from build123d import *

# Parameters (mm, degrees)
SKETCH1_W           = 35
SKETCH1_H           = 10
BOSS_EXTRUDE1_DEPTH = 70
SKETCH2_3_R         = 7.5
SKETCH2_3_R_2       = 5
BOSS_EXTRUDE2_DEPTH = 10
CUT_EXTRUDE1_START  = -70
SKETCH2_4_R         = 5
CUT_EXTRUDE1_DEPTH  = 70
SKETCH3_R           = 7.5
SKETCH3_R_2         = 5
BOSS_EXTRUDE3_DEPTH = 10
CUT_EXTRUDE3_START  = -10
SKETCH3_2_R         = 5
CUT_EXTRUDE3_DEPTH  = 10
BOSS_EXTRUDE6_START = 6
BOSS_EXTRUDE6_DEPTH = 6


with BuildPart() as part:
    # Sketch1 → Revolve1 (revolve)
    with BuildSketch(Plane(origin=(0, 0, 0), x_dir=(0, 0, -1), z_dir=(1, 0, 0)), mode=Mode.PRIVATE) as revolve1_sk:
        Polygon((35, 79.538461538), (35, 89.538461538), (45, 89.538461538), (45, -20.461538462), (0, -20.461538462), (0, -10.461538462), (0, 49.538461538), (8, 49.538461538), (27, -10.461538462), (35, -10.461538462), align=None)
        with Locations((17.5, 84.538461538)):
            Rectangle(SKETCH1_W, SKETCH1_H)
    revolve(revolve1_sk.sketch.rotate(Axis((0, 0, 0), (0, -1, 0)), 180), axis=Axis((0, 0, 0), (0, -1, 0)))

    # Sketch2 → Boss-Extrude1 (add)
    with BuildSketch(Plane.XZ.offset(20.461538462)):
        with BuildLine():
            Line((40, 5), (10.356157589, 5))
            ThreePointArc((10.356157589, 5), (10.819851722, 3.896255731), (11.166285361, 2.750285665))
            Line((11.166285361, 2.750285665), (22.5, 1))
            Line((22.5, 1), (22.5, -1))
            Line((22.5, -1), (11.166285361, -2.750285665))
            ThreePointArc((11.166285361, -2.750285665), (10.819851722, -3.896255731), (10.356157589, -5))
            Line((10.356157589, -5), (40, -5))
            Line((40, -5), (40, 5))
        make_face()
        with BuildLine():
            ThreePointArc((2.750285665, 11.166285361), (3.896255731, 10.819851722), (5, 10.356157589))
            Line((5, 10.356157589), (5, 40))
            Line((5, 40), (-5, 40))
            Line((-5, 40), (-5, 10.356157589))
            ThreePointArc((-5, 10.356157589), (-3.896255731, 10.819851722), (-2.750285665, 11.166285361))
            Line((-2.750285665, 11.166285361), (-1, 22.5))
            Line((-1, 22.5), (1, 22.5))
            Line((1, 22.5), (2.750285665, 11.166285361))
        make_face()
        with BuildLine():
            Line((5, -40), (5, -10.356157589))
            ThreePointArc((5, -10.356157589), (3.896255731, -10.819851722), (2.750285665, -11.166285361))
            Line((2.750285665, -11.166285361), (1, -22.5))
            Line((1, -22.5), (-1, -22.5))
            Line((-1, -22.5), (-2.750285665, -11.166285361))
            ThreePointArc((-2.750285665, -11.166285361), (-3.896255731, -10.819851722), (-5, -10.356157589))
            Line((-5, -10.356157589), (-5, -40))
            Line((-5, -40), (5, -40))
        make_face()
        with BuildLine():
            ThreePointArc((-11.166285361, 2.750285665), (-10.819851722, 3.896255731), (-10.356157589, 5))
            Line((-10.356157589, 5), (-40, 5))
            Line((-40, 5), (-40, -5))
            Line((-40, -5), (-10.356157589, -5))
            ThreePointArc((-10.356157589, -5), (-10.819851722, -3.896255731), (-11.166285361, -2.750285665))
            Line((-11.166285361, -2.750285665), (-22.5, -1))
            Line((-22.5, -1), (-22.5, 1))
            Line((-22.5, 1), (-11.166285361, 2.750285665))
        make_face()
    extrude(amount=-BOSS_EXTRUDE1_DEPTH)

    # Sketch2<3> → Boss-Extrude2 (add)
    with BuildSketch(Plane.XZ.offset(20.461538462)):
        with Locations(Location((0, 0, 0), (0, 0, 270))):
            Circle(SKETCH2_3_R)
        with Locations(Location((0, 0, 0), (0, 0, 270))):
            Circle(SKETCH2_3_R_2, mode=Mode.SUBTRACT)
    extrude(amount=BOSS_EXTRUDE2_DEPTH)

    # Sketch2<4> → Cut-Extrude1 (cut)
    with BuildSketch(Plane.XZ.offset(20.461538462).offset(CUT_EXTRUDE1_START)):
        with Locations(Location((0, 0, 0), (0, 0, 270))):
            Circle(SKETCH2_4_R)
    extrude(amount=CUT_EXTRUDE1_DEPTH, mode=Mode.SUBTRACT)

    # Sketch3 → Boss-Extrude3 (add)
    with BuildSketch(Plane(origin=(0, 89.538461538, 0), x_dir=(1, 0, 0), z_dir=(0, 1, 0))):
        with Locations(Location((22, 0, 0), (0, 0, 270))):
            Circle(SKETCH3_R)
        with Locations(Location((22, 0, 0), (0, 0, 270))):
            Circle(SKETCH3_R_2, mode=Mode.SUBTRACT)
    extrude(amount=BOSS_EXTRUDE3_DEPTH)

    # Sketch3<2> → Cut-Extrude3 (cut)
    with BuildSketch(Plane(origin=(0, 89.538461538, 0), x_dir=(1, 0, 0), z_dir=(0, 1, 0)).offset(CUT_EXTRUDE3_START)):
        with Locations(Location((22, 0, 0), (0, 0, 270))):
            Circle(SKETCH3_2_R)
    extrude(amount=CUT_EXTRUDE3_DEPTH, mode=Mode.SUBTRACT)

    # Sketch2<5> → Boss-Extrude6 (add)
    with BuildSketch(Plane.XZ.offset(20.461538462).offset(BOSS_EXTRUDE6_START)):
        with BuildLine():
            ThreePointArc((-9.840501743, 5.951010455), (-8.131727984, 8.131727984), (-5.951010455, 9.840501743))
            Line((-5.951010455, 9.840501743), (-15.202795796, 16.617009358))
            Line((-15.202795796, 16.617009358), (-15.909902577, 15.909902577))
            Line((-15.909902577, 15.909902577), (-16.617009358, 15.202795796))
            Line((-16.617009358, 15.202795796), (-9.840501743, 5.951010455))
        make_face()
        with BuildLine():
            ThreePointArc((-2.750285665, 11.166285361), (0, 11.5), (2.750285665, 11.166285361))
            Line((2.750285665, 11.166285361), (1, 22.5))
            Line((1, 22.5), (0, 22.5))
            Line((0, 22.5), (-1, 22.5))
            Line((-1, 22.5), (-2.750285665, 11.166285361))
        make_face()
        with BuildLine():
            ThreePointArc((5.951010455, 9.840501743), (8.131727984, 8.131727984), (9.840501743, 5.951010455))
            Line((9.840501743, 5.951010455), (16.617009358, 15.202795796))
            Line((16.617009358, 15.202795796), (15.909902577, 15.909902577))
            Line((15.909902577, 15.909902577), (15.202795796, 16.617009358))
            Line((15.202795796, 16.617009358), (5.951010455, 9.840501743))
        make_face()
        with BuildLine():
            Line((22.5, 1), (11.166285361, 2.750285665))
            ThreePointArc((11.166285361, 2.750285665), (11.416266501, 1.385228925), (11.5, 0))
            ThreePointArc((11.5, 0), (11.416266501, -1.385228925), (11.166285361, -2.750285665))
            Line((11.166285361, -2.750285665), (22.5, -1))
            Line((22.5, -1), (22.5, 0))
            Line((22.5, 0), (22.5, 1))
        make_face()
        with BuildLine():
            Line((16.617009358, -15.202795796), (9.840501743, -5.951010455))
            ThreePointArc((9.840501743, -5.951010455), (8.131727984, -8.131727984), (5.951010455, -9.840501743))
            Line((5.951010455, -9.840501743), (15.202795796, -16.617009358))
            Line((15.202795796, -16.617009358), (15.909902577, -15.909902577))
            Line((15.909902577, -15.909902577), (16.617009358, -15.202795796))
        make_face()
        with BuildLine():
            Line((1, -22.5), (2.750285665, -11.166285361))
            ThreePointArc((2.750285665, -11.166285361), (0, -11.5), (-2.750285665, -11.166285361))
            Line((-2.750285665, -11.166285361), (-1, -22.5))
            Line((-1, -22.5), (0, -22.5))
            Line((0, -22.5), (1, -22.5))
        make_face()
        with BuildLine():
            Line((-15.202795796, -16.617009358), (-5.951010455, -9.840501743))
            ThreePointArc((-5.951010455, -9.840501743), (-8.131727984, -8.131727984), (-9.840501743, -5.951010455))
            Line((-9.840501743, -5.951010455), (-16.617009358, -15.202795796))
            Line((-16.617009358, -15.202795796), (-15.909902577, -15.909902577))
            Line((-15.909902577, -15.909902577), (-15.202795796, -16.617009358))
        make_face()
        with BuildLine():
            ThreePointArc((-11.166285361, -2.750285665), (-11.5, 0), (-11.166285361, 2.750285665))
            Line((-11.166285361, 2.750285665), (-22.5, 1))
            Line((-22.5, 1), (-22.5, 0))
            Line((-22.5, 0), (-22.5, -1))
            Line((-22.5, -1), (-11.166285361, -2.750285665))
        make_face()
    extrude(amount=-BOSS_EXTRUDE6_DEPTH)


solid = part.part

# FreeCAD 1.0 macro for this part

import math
import FreeCAD as App
import Part
import Sketcher

V = App.Vector
Q = App.Units.Quantity

doc = App.newDocument("Part")
params = doc.addObject("Spreadsheet::Sheet", "Params")
for row, (alias, value) in enumerate([
    ("sketch1_width", "90 mm"),
    ("sketch1_width2", "70 mm"),
    ("sketch1_width3", "110 mm"),
    ("sketch1_width4", "10 mm"),
    ("sketch1_height", "8 mm"),
    ("revolution_angle", "360 deg"),
    ("sketch2_radius", "11.5 mm"),
    ("sketch2_width", "10 mm"),
    ("sketch2_width2", "2 mm"),
    ("pad1_length", "70 mm"),
    ("sketch3_diameter", "15 mm"),
    ("sketch3_diameter2", "10 mm"),
    ("pad2_length", "10 mm"),
    ("sketch4_diameter", "10 mm"),
    ("pocket1_length", "70 mm"),
    ("sketch5_diameter", "15 mm"),
    ("sketch5_diameter2", "10 mm"),
    ("pad3_length", "10 mm"),
    ("sketch6_diameter", "10 mm"),
    ("pocket2_length", "10 mm"),
    ("sketch7_radius", "11.5 mm"),
    ("sketch7_width", "2 mm"),
    ("sketch7_length", "2 mm"),
    ("pad4_length", "6 mm"),
], start=1):
    params.set(f"A{row}", alias)
    params.set(f"B{row}", "=" + value)
    params.setAlias(f"B{row}", alias)

body = doc.addObject("PartDesign::Body", "Body")

# Sketch on YZ plane
sketch1 = body.newObject("Sketcher::SketchObject", "Sketch")
sketch1.AttachmentSupport = (doc.getObject("YZ_Plane"), [""])
sketch1.MapMode = "FlatFace"
sketch1.addGeometry(Part.LineSegment(V(80, -35, 0), V(-10, -35, 0)), False)
sketch1.addGeometry(Part.LineSegment(V(-10, -35, 0), V(-10, -27, 0)), False)
sketch1.addGeometry(Part.LineSegment(V(-10, -27, 0), V(50, -8, 0)), False)
sketch1.addGeometry(Part.LineSegment(V(50, -8, 0), V(50, 0, 0)), False)
sketch1.addGeometry(Part.LineSegment(V(50, 0, 0), V(-20, 0, 0)), False)
sketch1.addGeometry(Part.LineSegment(V(-20, 0, 0), V(-20, -45, 0)), False)
sketch1.addGeometry(Part.LineSegment(V(-20, -45, 0), V(90, -45, 0)), False)
sketch1.addGeometry(Part.LineSegment(V(90, -45, 0), V(90, 0, 0)), False)
sketch1.addGeometry(Part.LineSegment(V(90, 0, 0), V(80, 0, 0)), False)
sketch1.addGeometry(Part.LineSegment(V(80, 0, 0), V(80, -35, 0)), False)
sketch1.addConstraint(Sketcher.Constraint("Coincident", 0, 2, 1, 1))
sketch1.addConstraint(Sketcher.Constraint("Coincident", 1, 2, 2, 1))
sketch1.addConstraint(Sketcher.Constraint("Coincident", 2, 2, 3, 1))
sketch1.addConstraint(Sketcher.Constraint("Coincident", 3, 2, 4, 1))
sketch1.addConstraint(Sketcher.Constraint("Coincident", 4, 2, 5, 1))
sketch1.addConstraint(Sketcher.Constraint("Coincident", 5, 2, 6, 1))
sketch1.addConstraint(Sketcher.Constraint("Coincident", 6, 2, 7, 1))
sketch1.addConstraint(Sketcher.Constraint("Coincident", 7, 2, 8, 1))
sketch1.addConstraint(Sketcher.Constraint("Coincident", 8, 2, 9, 1))
sketch1.addConstraint(Sketcher.Constraint("Coincident", 9, 2, 0, 1))
sketch1.addConstraint(Sketcher.Constraint("Horizontal", 0))
sketch1.addConstraint(Sketcher.Constraint("Vertical", 1))
sketch1.addConstraint(Sketcher.Constraint("Vertical", 3))
sketch1.addConstraint(Sketcher.Constraint("Horizontal", 4))
sketch1.addConstraint(Sketcher.Constraint("Vertical", 5))
sketch1.addConstraint(Sketcher.Constraint("Horizontal", 6))
sketch1.addConstraint(Sketcher.Constraint("Vertical", 7))
sketch1.addConstraint(Sketcher.Constraint("Horizontal", 8))
sketch1.addConstraint(Sketcher.Constraint("Vertical", 9))
sketch1.addConstraint(Sketcher.Constraint("PointOnObject", 3, 2, -1))
sketch1.addConstraint(Sketcher.Constraint("PointOnObject", 7, 2, -1))
sketch1.addConstraint(Sketcher.Constraint("Equal", 1, 3))
sketch1.addConstraint(Sketcher.Constraint("DistanceX", 0, 2, 0, 1, Q("90 mm")))
sketch1.addConstraint(Sketcher.Constraint("DistanceX", 4, 2, 4, 1, Q("70 mm")))
sketch1.addConstraint(Sketcher.Constraint("DistanceX", 6, 1, 6, 2, Q("110 mm")))
sketch1.addConstraint(Sketcher.Constraint("DistanceX", 8, 2, 8, 1, Q("10 mm")))
sketch1.addConstraint(Sketcher.Constraint("DistanceY", 1, 1, 1, 2, Q("8 mm")))
sketch1.addConstraint(Sketcher.Constraint("DistanceY", 5, 2, 5, 1, Q("45 mm")))
sketch1.addConstraint(Sketcher.Constraint("DistanceY", 9, 2, 9, 1, Q("35 mm")))
sketch1.addConstraint(Sketcher.Constraint("DistanceX", 0, 2, -1, 1, Q("10.461538 mm")))
sketch1.setExpression("Constraints[22]", "Params.sketch1_width")
sketch1.setExpression("Constraints[23]", "Params.sketch1_width2")
sketch1.setExpression("Constraints[24]", "Params.sketch1_width3")
sketch1.setExpression("Constraints[25]", "Params.sketch1_width4")
sketch1.setExpression("Constraints[26]", "Params.sketch1_height")
revolution = body.newObject("PartDesign::Revolution", "Revolution")
revolution.Profile = sketch1
revolution.ReferenceAxis = (sketch1, ["H_Axis"])
revolution.setExpression("Angle", "Params.revolution_angle")

# Sketch on XZ plane
sketch2 = body.newObject("Sketcher::SketchObject", "Sketch001")
sketch2.AttachmentSupport = (doc.getObject("XZ_Plane"), [""])
sketch2.MapMode = "FlatFace"
sketch2.AttachmentOffset = App.Placement(V(0, 0, 20.461538), App.Rotation())
sketch2.addGeometry(Part.LineSegment(V(40, 5, 0), V(10.4, 5, 0)), False)
sketch2.addGeometry(Part.ArcOfCircle(Part.Circle(V(0, 0, 0), V(0, 0, 1), 11.5), math.radians(13.84), math.radians(25.77)), False)
sketch2.addGeometry(Part.LineSegment(V(11.2, 2.8, 0), V(22.5, 1, 0)), False)
sketch2.addGeometry(Part.LineSegment(V(22.5, 1, 0), V(22.5, -1, 0)), False)
sketch2.addGeometry(Part.LineSegment(V(22.5, -1, 0), V(11.2, -2.8, 0)), False)
sketch2.addGeometry(Part.ArcOfCircle(Part.Circle(V(0, 0, 0), V(0, 0, 1), 11.5), math.radians(-25.77), math.radians(-13.84)), False)
sketch2.addGeometry(Part.LineSegment(V(10.4, -5, 0), V(40, -5, 0)), False)
sketch2.addGeometry(Part.LineSegment(V(40, -5, 0), V(40, 5, 0)), False)
sketch2.addGeometry(Part.ArcOfCircle(Part.Circle(V(0, 0, 0), V(0, 0, 1), 11.5), math.radians(64.23), math.radians(76.16)), False)
sketch2.addGeometry(Part.LineSegment(V(5, 10.4, 0), V(5, 40, 0)), False)
sketch2.addGeometry(Part.LineSegment(V(5, 40, 0), V(-5, 40, 0)), False)
sketch2.addGeometry(Part.LineSegment(V(-5, 40, 0), V(-5, 10.4, 0)), False)
sketch2.addGeometry(Part.ArcOfCircle(Part.Circle(V(0, 0, 0), V(0, 0, 1), 11.5), math.radians(103.84), math.radians(115.77)), False)
sketch2.addGeometry(Part.LineSegment(V(-2.8, 11.2, 0), V(-1, 22.5, 0)), False)
sketch2.addGeometry(Part.LineSegment(V(-1, 22.5, 0), V(1, 22.5, 0)), False)
sketch2.addGeometry(Part.LineSegment(V(1, 22.5, 0), V(2.8, 11.2, 0)), False)
sketch2.addGeometry(Part.LineSegment(V(5, -40, 0), V(5, -10.4, 0)), False)
sketch2.addGeometry(Part.ArcOfCircle(Part.Circle(V(0, 0, 0), V(0, 0, 1), 11.5), math.radians(-76.16), math.radians(-64.23)), False)
sketch2.addGeometry(Part.LineSegment(V(2.8, -11.2, 0), V(1, -22.5, 0)), False)
sketch2.addGeometry(Part.LineSegment(V(1, -22.5, 0), V(-1, -22.5, 0)), False)
sketch2.addGeometry(Part.LineSegment(V(-1, -22.5, 0), V(-2.8, -11.2, 0)), False)
sketch2.addGeometry(Part.ArcOfCircle(Part.Circle(V(0, 0, 0), V(0, 0, 1), 11.5), math.radians(-115.77), math.radians(-103.84)), False)
sketch2.addGeometry(Part.LineSegment(V(-5, -10.4, 0), V(-5, -40, 0)), False)
sketch2.addGeometry(Part.LineSegment(V(-5, -40, 0), V(5, -40, 0)), False)
sketch2.addGeometry(Part.ArcOfCircle(Part.Circle(V(0, 0, 0), V(0, 0, 1), 11.5), math.radians(154.23), math.radians(166.16)), False)
sketch2.addGeometry(Part.LineSegment(V(-10.4, 5, 0), V(-40, 5, 0)), False)
sketch2.addGeometry(Part.LineSegment(V(-40, 5, 0), V(-40, -5, 0)), False)
sketch2.addGeometry(Part.LineSegment(V(-40, -5, 0), V(-10.4, -5, 0)), False)
sketch2.addGeometry(Part.ArcOfCircle(Part.Circle(V(0, 0, 0), V(0, 0, 1), 11.5), math.radians(-166.16), math.radians(-154.23)), False)
sketch2.addGeometry(Part.LineSegment(V(-11.2, -2.8, 0), V(-22.5, -1, 0)), False)
sketch2.addGeometry(Part.LineSegment(V(-22.5, -1, 0), V(-22.5, 1, 0)), False)
sketch2.addGeometry(Part.LineSegment(V(-22.5, 1, 0), V(-11.2, 2.8, 0)), False)
sketch2.addConstraint(Sketcher.Constraint("Coincident", 0, 2, 1, 2))
sketch2.addConstraint(Sketcher.Constraint("Coincident", 1, 1, 2, 1))
sketch2.addConstraint(Sketcher.Constraint("Coincident", 2, 2, 3, 1))
sketch2.addConstraint(Sketcher.Constraint("Coincident", 3, 2, 4, 1))
sketch2.addConstraint(Sketcher.Constraint("Coincident", 4, 2, 5, 2))
sketch2.addConstraint(Sketcher.Constraint("Coincident", 5, 1, 6, 1))
sketch2.addConstraint(Sketcher.Constraint("Coincident", 6, 2, 7, 1))
sketch2.addConstraint(Sketcher.Constraint("Coincident", 7, 2, 0, 1))
sketch2.addConstraint(Sketcher.Constraint("Coincident", 8, 1, 9, 1))
sketch2.addConstraint(Sketcher.Constraint("Coincident", 9, 2, 10, 1))
sketch2.addConstraint(Sketcher.Constraint("Coincident", 10, 2, 11, 1))
sketch2.addConstraint(Sketcher.Constraint("Coincident", 11, 2, 12, 2))
sketch2.addConstraint(Sketcher.Constraint("Coincident", 12, 1, 13, 1))
sketch2.addConstraint(Sketcher.Constraint("Coincident", 13, 2, 14, 1))
sketch2.addConstraint(Sketcher.Constraint("Coincident", 14, 2, 15, 1))
sketch2.addConstraint(Sketcher.Constraint("Coincident", 15, 2, 8, 2))
sketch2.addConstraint(Sketcher.Constraint("Coincident", 16, 2, 17, 2))
sketch2.addConstraint(Sketcher.Constraint("Coincident", 17, 1, 18, 1))
sketch2.addConstraint(Sketcher.Constraint("Coincident", 18, 2, 19, 1))
sketch2.addConstraint(Sketcher.Constraint("Coincident", 19, 2, 20, 1))
sketch2.addConstraint(Sketcher.Constraint("Coincident", 20, 2, 21, 2))
sketch2.addConstraint(Sketcher.Constraint("Coincident", 21, 1, 22, 1))
sketch2.addConstraint(Sketcher.Constraint("Coincident", 22, 2, 23, 1))
sketch2.addConstraint(Sketcher.Constraint("Coincident", 23, 2, 16, 1))
sketch2.addConstraint(Sketcher.Constraint("Coincident", 24, 1, 25, 1))
sketch2.addConstraint(Sketcher.Constraint("Coincident", 25, 2, 26, 1))
sketch2.addConstraint(Sketcher.Constraint("Coincident", 26, 2, 27, 1))
sketch2.addConstraint(Sketcher.Constraint("Coincident", 27, 2, 28, 2))
sketch2.addConstraint(Sketcher.Constraint("Coincident", 28, 1, 29, 1))
sketch2.addConstraint(Sketcher.Constraint("Coincident", 29, 2, 30, 1))
sketch2.addConstraint(Sketcher.Constraint("Coincident", 30, 2, 31, 1))
sketch2.addConstraint(Sketcher.Constraint("Coincident", 31, 2, 24, 2))
sketch2.addConstraint(Sketcher.Constraint("Horizontal", 0))
sketch2.addConstraint(Sketcher.Constraint("Vertical", 3))
sketch2.addConstraint(Sketcher.Constraint("Horizontal", 6))
sketch2.addConstraint(Sketcher.Constraint("Vertical", 7))
sketch2.addConstraint(Sketcher.Constraint("Vertical", 9))
sketch2.addConstraint(Sketcher.Constraint("Horizontal", 10))
sketch2.addConstraint(Sketcher.Constraint("Vertical", 11))
sketch2.addConstraint(Sketcher.Constraint("Horizontal", 14))
sketch2.addConstraint(Sketcher.Constraint("Vertical", 16))
sketch2.addConstraint(Sketcher.Constraint("Horizontal", 19))
sketch2.addConstraint(Sketcher.Constraint("Vertical", 22))
sketch2.addConstraint(Sketcher.Constraint("Horizontal", 23))
sketch2.addConstraint(Sketcher.Constraint("Horizontal", 25))
sketch2.addConstraint(Sketcher.Constraint("Vertical", 26))
sketch2.addConstraint(Sketcher.Constraint("Horizontal", 27))
sketch2.addConstraint(Sketcher.Constraint("Vertical", 30))
sketch2.addConstraint(Sketcher.Constraint("Coincident", 1, 3, -1, 1))
sketch2.addConstraint(Sketcher.Constraint("Coincident", 5, 3, -1, 1))
sketch2.addConstraint(Sketcher.Constraint("Coincident", 8, 3, -1, 1))
sketch2.addConstraint(Sketcher.Constraint("Coincident", 12, 3, -1, 1))
sketch2.addConstraint(Sketcher.Constraint("Coincident", 17, 3, -1, 1))
sketch2.addConstraint(Sketcher.Constraint("Coincident", 21, 3, -1, 1))
sketch2.addConstraint(Sketcher.Constraint("Coincident", 24, 3, -1, 1))
sketch2.addConstraint(Sketcher.Constraint("Coincident", 28, 3, -1, 1))
sketch2.addConstraint(Sketcher.Constraint("Equal", 1, 5))
sketch2.addConstraint(Sketcher.Constraint("Equal", 5, 8))
sketch2.addConstraint(Sketcher.Constraint("Equal", 8, 12))
sketch2.addConstraint(Sketcher.Constraint("Equal", 12, 17))
sketch2.addConstraint(Sketcher.Constraint("Equal", 17, 21))
sketch2.addConstraint(Sketcher.Constraint("Equal", 21, 24))
sketch2.addConstraint(Sketcher.Constraint("Equal", 24, 28))
sketch2.addConstraint(Sketcher.Constraint("Symmetric", 13, 2, 18, 2, -1, 1))
sketch2.addConstraint(Sketcher.Constraint("Symmetric", 9, 2, 22, 2, -1, 1))
sketch2.addConstraint(Sketcher.Constraint("Symmetric", 6, 2, 25, 2, -1, 1))
sketch2.addConstraint(Sketcher.Constraint("Symmetric", 2, 2, 29, 2, -1, 1))
sketch2.addConstraint(Sketcher.Constraint("Perpendicular", 2, 13))
sketch2.addConstraint(Sketcher.Constraint("Perpendicular", 4, 15))
sketch2.addConstraint(Sketcher.Constraint("Parallel", 13, 18))
sketch2.addConstraint(Sketcher.Constraint("Parallel", 15, 20))
sketch2.addConstraint(Sketcher.Constraint("Perpendicular", 18, 29))
sketch2.addConstraint(Sketcher.Constraint("Perpendicular", 20, 31))
sketch2.addConstraint(Sketcher.Constraint("Horizontal", 8, 1, 11, 2))
sketch2.addConstraint(Sketcher.Constraint("Horizontal", 12, 1, 15, 2))
sketch2.addConstraint(Sketcher.Constraint("Horizontal", 17, 1, 20, 2))
sketch2.addConstraint(Sketcher.Constraint("Horizontal", 16, 2, 21, 1))
sketch2.addConstraint(Sketcher.Constraint("Horizontal", 7, 2, 24, 1))
sketch2.addConstraint(Sketcher.Constraint("Horizontal", 6, 2, 26, 2))
sketch2.addConstraint(Sketcher.Constraint("Horizontal", 4, 2, 28, 1))
sketch2.addConstraint(Sketcher.Constraint("Horizontal", 3, 2, 29, 2))
sketch2.addConstraint(Sketcher.Constraint("Horizontal", 2, 2, 30, 2))
sketch2.addConstraint(Sketcher.Constraint("Equal", 19, 3))
sketch2.addConstraint(Sketcher.Constraint("Equal", 23, 7))
sketch2.addConstraint(Sketcher.Constraint("Equal", 27, 9))
sketch2.addConstraint(Sketcher.Constraint("Equal", 4, 13))
sketch2.addConstraint(Sketcher.Constraint("Radius", 1, Q("11.5 mm")))
sketch2.addConstraint(Sketcher.Constraint("DistanceX", 10, 2, 10, 1, Q("10 mm")))
sketch2.addConstraint(Sketcher.Constraint("DistanceX", 14, 1, 14, 2, Q("2 mm")))
sketch2.addConstraint(Sketcher.Constraint("DistanceX", -1, 1, 6, 2, Q("40 mm")))
sketch2.addConstraint(Sketcher.Constraint("DistanceX", -1, 1, 2, 2, Q("22.5 mm")))
sketch2.addConstraint(Sketcher.Constraint("Distance", 2, Q("11.468068 mm")))
sketch2.setExpression("Constraints[86]", "Params.sketch2_radius")
sketch2.setExpression("Constraints[87]", "Params.sketch2_width")
sketch2.setExpression("Constraints[88]", "Params.sketch2_width2")
pad1 = body.newObject("PartDesign::Pad", "Pad")
pad1.Profile = sketch2
pad1.setExpression("Length", "Params.pad1_length")
pad1.Reversed = True

# Sketch on XZ plane
sketch3 = body.newObject("Sketcher::SketchObject", "Sketch002")
sketch3.AttachmentSupport = (doc.getObject("XZ_Plane"), [""])
sketch3.MapMode = "FlatFace"
sketch3.AttachmentOffset = App.Placement(V(0, 0, 20.461538), App.Rotation())
sketch3.addGeometry(Part.Circle(V(0, 0, 0), V(0, 0, 1), 8), False)
sketch3.addGeometry(Part.Circle(V(0, 0, 0), V(0, 0, 1), 5), False)
sketch3.addConstraint(Sketcher.Constraint("Coincident", 0, 3, -1, 1))
sketch3.addConstraint(Sketcher.Constraint("Coincident", 1, 3, -1, 1))
sketch3.addConstraint(Sketcher.Constraint("Diameter", 0, Q("15 mm")))
sketch3.addConstraint(Sketcher.Constraint("Diameter", 1, Q("10 mm")))
sketch3.setExpression("Constraints[2]", "Params.sketch3_diameter")
sketch3.setExpression("Constraints[3]", "Params.sketch3_diameter2")
pad2 = body.newObject("PartDesign::Pad", "Pad001")
pad2.Profile = sketch3
pad2.setExpression("Length", "Params.pad2_length")

# Sketch on XZ plane
sketch4 = body.newObject("Sketcher::SketchObject", "Sketch003")
sketch4.AttachmentSupport = (doc.getObject("XZ_Plane"), [""])
sketch4.MapMode = "FlatFace"
sketch4.AttachmentOffset = App.Placement(V(0, 0, -49.538462), App.Rotation())
sketch4.addGeometry(Part.Circle(V(0, 0, 0), V(0, 0, 1), 5), False)
sketch4.addConstraint(Sketcher.Constraint("Coincident", 0, 3, -1, 1))
sketch4.addConstraint(Sketcher.Constraint("Diameter", 0, Q("10 mm")))
sketch4.setExpression("Constraints[1]", "Params.sketch4_diameter")
pocket1 = body.newObject("PartDesign::Pocket", "Pocket")
pocket1.Profile = sketch4
pocket1.setExpression("Length", "Params.pocket1_length")
pocket1.Reversed = True

# Sketch on XZ plane
sketch5 = body.newObject("Sketcher::SketchObject", "Sketch004")
sketch5.AttachmentSupport = (doc.getObject("XZ_Plane"), [""])
sketch5.MapMode = "FlatFace"
sketch5.AttachmentOffset = App.Placement(V(0, 0, -89.538462), App.Rotation())
sketch5.addGeometry(Part.Circle(V(22, 0, 0), V(0, 0, 1), 8), False)
sketch5.addGeometry(Part.Circle(V(22, 0, 0), V(0, 0, 1), 5), False)
sketch5.addConstraint(Sketcher.Constraint("Coincident", 1, 3, 0, 3))
sketch5.addConstraint(Sketcher.Constraint("PointOnObject", 0, 3, -1))
sketch5.addConstraint(Sketcher.Constraint("Diameter", 0, Q("15 mm")))
sketch5.addConstraint(Sketcher.Constraint("Diameter", 1, Q("10 mm")))
sketch5.addConstraint(Sketcher.Constraint("DistanceX", -1, 1, 0, 3, Q("22 mm")))
sketch5.setExpression("Constraints[2]", "Params.sketch5_diameter")
sketch5.setExpression("Constraints[3]", "Params.sketch5_diameter2")
pad3 = body.newObject("PartDesign::Pad", "Pad002")
pad3.Profile = sketch5
pad3.setExpression("Length", "Params.pad3_length")
pad3.Reversed = True

# Sketch on XZ plane
sketch6 = body.newObject("Sketcher::SketchObject", "Sketch005")
sketch6.AttachmentSupport = (doc.getObject("XZ_Plane"), [""])
sketch6.MapMode = "FlatFace"
sketch6.AttachmentOffset = App.Placement(V(0, 0, -79.538462), App.Rotation())
sketch6.addGeometry(Part.Circle(V(22, 0, 0), V(0, 0, 1), 5), False)
sketch6.addConstraint(Sketcher.Constraint("PointOnObject", 0, 3, -1))
sketch6.addConstraint(Sketcher.Constraint("Diameter", 0, Q("10 mm")))
sketch6.addConstraint(Sketcher.Constraint("DistanceX", -1, 1, 0, 3, Q("22 mm")))
sketch6.setExpression("Constraints[1]", "Params.sketch6_diameter")
pocket2 = body.newObject("PartDesign::Pocket", "Pocket001")
pocket2.Profile = sketch6
pocket2.setExpression("Length", "Params.pocket2_length")

# Sketch on XZ plane
sketch7 = body.newObject("Sketcher::SketchObject", "Sketch006")
sketch7.AttachmentSupport = (doc.getObject("XZ_Plane"), [""])
sketch7.MapMode = "FlatFace"
sketch7.AttachmentOffset = App.Placement(V(0, 0, 26.461538), App.Rotation())
sketch7.addGeometry(Part.ArcOfCircle(Part.Circle(V(0, 0, 0), V(0, 0, 1), 11.5), math.radians(121), math.radians(149)), False)
sketch7.addGeometry(Part.LineSegment(V(-6, 9.8, 0), V(-15.2, 16.6, 0)), False)
sketch7.addGeometry(Part.LineSegment(V(-15.2, 16.6, 0), V(-16.6, 15.2, 0)), False)
sketch7.addGeometry(Part.LineSegment(V(-16.6, 15.2, 0), V(-9.8, 6, 0)), False)
sketch7.addGeometry(Part.ArcOfCircle(Part.Circle(V(0, 0, 0), V(0, 0, 1), 11.5), math.radians(76), math.radians(104)), False)
sketch7.addGeometry(Part.LineSegment(V(2.8, 11.2, 0), V(1, 22.5, 0)), False)
sketch7.addGeometry(Part.LineSegment(V(1, 22.5, 0), V(-1, 22.5, 0)), False)
sketch7.addGeometry(Part.LineSegment(V(-1, 22.5, 0), V(-2.8, 11.2, 0)), False)
sketch7.addGeometry(Part.ArcOfCircle(Part.Circle(V(0, 0, 0), V(0, 0, 1), 11.5), math.radians(31), math.radians(59)), False)
sketch7.addGeometry(Part.LineSegment(V(9.8, 6, 0), V(16.6, 15.2, 0)), False)
sketch7.addGeometry(Part.LineSegment(V(16.6, 15.2, 0), V(15.2, 16.6, 0)), False)
sketch7.addGeometry(Part.LineSegment(V(15.2, 16.6, 0), V(6, 9.8, 0)), False)
sketch7.addGeometry(Part.LineSegment(V(22.5, 1, 0), V(11.2, 2.8, 0)), False)
sketch7.addGeometry(Part.ArcOfCircle(Part.Circle(V(0, 0, 0), V(0, 0, 1), 11.5), math.radians(0), math.radians(13.84)), False)
sketch7.addGeometry(Part.ArcOfCircle(Part.Circle(V(0, 0, 0), V(0, 0, 1), 11.5), math.radians(-13.84), math.radians(0)), False)
sketch7.addGeometry(Part.LineSegment(V(11.2, -2.8, 0), V(22.5, -1, 0)), False)
sketch7.addGeometry(Part.LineSegment(V(22.5, -1, 0), V(22.5, 1, 0)), False)
sketch7.addGeometry(Part.LineSegment(V(16.6, -15.2, 0), V(9.8, -6, 0)), False)
sketch7.addGeometry(Part.ArcOfCircle(Part.Circle(V(0, 0, 0), V(0, 0, 1), 11.5), math.radians(-59), math.radians(-31)), False)
sketch7.addGeometry(Part.LineSegment(V(6, -9.8, 0), V(15.2, -16.6, 0)), False)
sketch7.addGeometry(Part.LineSegment(V(15.2, -16.6, 0), V(16.6, -15.2, 0)), False)
sketch7.addGeometry(Part.LineSegment(V(1, -22.5, 0), V(2.8, -11.2, 0)), False)
sketch7.addGeometry(Part.ArcOfCircle(Part.Circle(V(0, 0, 0), V(0, 0, 1), 11.5), math.radians(-104), math.radians(-76)), False)
sketch7.addGeometry(Part.LineSegment(V(-2.8, -11.2, 0), V(-1, -22.5, 0)), False)
sketch7.addGeometry(Part.LineSegment(V(-1, -22.5, 0), V(1, -22.5, 0)), False)
sketch7.addGeometry(Part.LineSegment(V(-15.2, -16.6, 0), V(-6, -9.8, 0)), False)
sketch7.addGeometry(Part.ArcOfCircle(Part.Circle(V(0, 0, 0), V(0, 0, 1), 11.5), math.radians(-149), math.radians(-121)), False)
sketch7.addGeometry(Part.LineSegment(V(-9.8, -6, 0), V(-16.6, -15.2, 0)), False)
sketch7.addGeometry(Part.LineSegment(V(-16.6, -15.2, 0), V(-15.2, -16.6, 0)), False)
sketch7.addGeometry(Part.ArcOfCircle(Part.Circle(V(0, 0, 0), V(0, 0, 1), 11.5), math.radians(166), math.radians(194)), False)
sketch7.addGeometry(Part.LineSegment(V(-11.2, 2.8, 0), V(-22.5, 1, 0)), False)
sketch7.addGeometry(Part.LineSegment(V(-22.5, 1, 0), V(-22.5, -1, 0)), False)
sketch7.addGeometry(Part.LineSegment(V(-22.5, -1, 0), V(-11.2, -2.8, 0)), False)
sketch7.addConstraint(Sketcher.Constraint("Coincident", 0, 1, 1, 1))
sketch7.addConstraint(Sketcher.Constraint("Coincident", 1, 2, 2, 1))
sketch7.addConstraint(Sketcher.Constraint("Coincident", 2, 2, 3, 1))
sketch7.addConstraint(Sketcher.Constraint("Coincident", 3, 2, 0, 2))
sketch7.addConstraint(Sketcher.Constraint("Coincident", 4, 1, 5, 1))
sketch7.addConstraint(Sketcher.Constraint("Coincident", 5, 2, 6, 1))
sketch7.addConstraint(Sketcher.Constraint("Coincident", 6, 2, 7, 1))
sketch7.addConstraint(Sketcher.Constraint("Coincident", 7, 2, 4, 2))
sketch7.addConstraint(Sketcher.Constraint("Coincident", 8, 1, 9, 1))
sketch7.addConstraint(Sketcher.Constraint("Coincident", 9, 2, 10, 1))
sketch7.addConstraint(Sketcher.Constraint("Coincident", 10, 2, 11, 1))
sketch7.addConstraint(Sketcher.Constraint("Coincident", 11, 2, 8, 2))
sketch7.addConstraint(Sketcher.Constraint("Coincident", 12, 2, 13, 2))
sketch7.addConstraint(Sketcher.Constraint("Tangent", 13, 1, 14, 2))
sketch7.addConstraint(Sketcher.Constraint("Coincident", 14, 1, 15, 1))
sketch7.addConstraint(Sketcher.Constraint("Coincident", 15, 2, 16, 1))
sketch7.addConstraint(Sketcher.Constraint("Coincident", 16, 2, 12, 1))
sketch7.addConstraint(Sketcher.Constraint("Coincident", 17, 2, 18, 2))
sketch7.addConstraint(Sketcher.Constraint("Coincident", 18, 1, 19, 1))
sketch7.addConstraint(Sketcher.Constraint("Coincident", 19, 2, 20, 1))
sketch7.addConstraint(Sketcher.Constraint("Coincident", 20, 2, 17, 1))
sketch7.addConstraint(Sketcher.Constraint("Coincident", 21, 2, 22, 2))
sketch7.addConstraint(Sketcher.Constraint("Coincident", 22, 1, 23, 1))
sketch7.addConstraint(Sketcher.Constraint("Coincident", 23, 2, 24, 1))
sketch7.addConstraint(Sketcher.Constraint("Coincident", 24, 2, 21, 1))
sketch7.addConstraint(Sketcher.Constraint("Coincident", 25, 2, 26, 2))
sketch7.addConstraint(Sketcher.Constraint("Coincident", 26, 1, 27, 1))
sketch7.addConstraint(Sketcher.Constraint("Coincident", 27, 2, 28, 1))
sketch7.addConstraint(Sketcher.Constraint("Coincident", 28, 2, 25, 1))
sketch7.addConstraint(Sketcher.Constraint("Coincident", 29, 1, 30, 1))
sketch7.addConstraint(Sketcher.Constraint("Coincident", 30, 2, 31, 1))
sketch7.addConstraint(Sketcher.Constraint("Coincident", 31, 2, 32, 1))
sketch7.addConstraint(Sketcher.Constraint("Coincident", 32, 2, 29, 2))
sketch7.addConstraint(Sketcher.Constraint("Horizontal", 6))
sketch7.addConstraint(Sketcher.Constraint("Vertical", 16))
sketch7.addConstraint(Sketcher.Constraint("Horizontal", 24))
sketch7.addConstraint(Sketcher.Constraint("Vertical", 31))
sketch7.addConstraint(Sketcher.Constraint("Coincident", 0, 3, -1, 1))
sketch7.addConstraint(Sketcher.Constraint("Coincident", 4, 3, -1, 1))
sketch7.addConstraint(Sketcher.Constraint("Coincident", 8, 3, -1, 1))
sketch7.addConstraint(Sketcher.Constraint("Coincident", 13, 3, -1, 1))
sketch7.addConstraint(Sketcher.Constraint("Coincident", 18, 3, -1, 1))
sketch7.addConstraint(Sketcher.Constraint("Coincident", 22, 3, -1, 1))
sketch7.addConstraint(Sketcher.Constraint("Coincident", 26, 3, -1, 1))
sketch7.addConstraint(Sketcher.Constraint("Coincident", 29, 3, -1, 1))
sketch7.addConstraint(Sketcher.Constraint("Equal", 0, 4))
sketch7.addConstraint(Sketcher.Constraint("Equal", 4, 8))
sketch7.addConstraint(Sketcher.Constraint("Equal", 8, 13))
sketch7.addConstraint(Sketcher.Constraint("Equal", 13, 14))
sketch7.addConstraint(Sketcher.Constraint("Equal", 14, 18))
sketch7.addConstraint(Sketcher.Constraint("Equal", 18, 22))
sketch7.addConstraint(Sketcher.Constraint("Equal", 22, 26))
sketch7.addConstraint(Sketcher.Constraint("Equal", 26, 29))
sketch7.addConstraint(Sketcher.Constraint("Symmetric", 1, 2, 19, 2, -1, 1))
sketch7.addConstraint(Sketcher.Constraint("Symmetric", 2, 2, 20, 2, -1, 1))
sketch7.addConstraint(Sketcher.Constraint("Symmetric", 5, 2, 23, 2, -1, 1))
sketch7.addConstraint(Sketcher.Constraint("Symmetric", 9, 2, 27, 2, -1, 1))
sketch7.addConstraint(Sketcher.Constraint("Symmetric", 10, 2, 28, 2, -1, 1))
sketch7.addConstraint(Sketcher.Constraint("Symmetric", 15, 2, 30, 2, -1, 1))
sketch7.addConstraint(Sketcher.Constraint("Symmetric", 2, 2, 9, 2, -2))
sketch7.addConstraint(Sketcher.Constraint("Symmetric", 1, 2, 10, 2, -2))
sketch7.addConstraint(Sketcher.Constraint("PointOnObject", 13, 1, -1))
sketch7.addConstraint(Sketcher.Constraint("Perpendicular", 1, 9))
sketch7.addConstraint(Sketcher.Constraint("Perpendicular", 2, 10))
sketch7.addConstraint(Sketcher.Constraint("Perpendicular", 3, 11))
sketch7.addConstraint(Sketcher.Constraint("Perpendicular", 7, 12))
sketch7.addConstraint(Sketcher.Constraint("Perpendicular", 5, 15))
sketch7.addConstraint(Sketcher.Constraint("Perpendicular", 11, 17))
sketch7.addConstraint(Sketcher.Constraint("Perpendicular", 9, 19))
sketch7.addConstraint(Sketcher.Constraint("Perpendicular", 12, 21))
sketch7.addConstraint(Sketcher.Constraint("Perpendicular", 15, 23))
sketch7.addConstraint(Sketcher.Constraint("Perpendicular", 17, 25))
sketch7.addConstraint(Sketcher.Constraint("Perpendicular", 19, 27))
sketch7.addConstraint(Sketcher.Constraint("Perpendicular", 23, 30))
sketch7.addConstraint(Sketcher.Constraint("Perpendicular", 21, 32))
sketch7.addConstraint(Sketcher.Constraint("Horizontal", 4, 1, 7, 2))
sketch7.addConstraint(Sketcher.Constraint("Horizontal", 3, 2, 8, 1))
sketch7.addConstraint(Sketcher.Constraint("Horizontal", 21, 2, 22, 1))
sketch7.addConstraint(Sketcher.Constraint("Horizontal", 12, 2, 29, 1))
sketch7.addConstraint(Sketcher.Constraint("Horizontal", 16, 2, 30, 2))
sketch7.addConstraint(Sketcher.Constraint("Horizontal", 15, 2, 31, 2))
sketch7.addConstraint(Sketcher.Constraint("Equal", 24, 16))
sketch7.addConstraint(Sketcher.Constraint("Equal", 1, 3))
sketch7.addConstraint(Sketcher.Constraint("Equal", 3, 5))
sketch7.addConstraint(Sketcher.Constraint("Equal", 11, 12))
sketch7.addConstraint(Sketcher.Constraint("Radius", 0, Q("11.5 mm")))
sketch7.addConstraint(Sketcher.Constraint("DistanceX", 6, 2, 6, 1, Q("2 mm")))
sketch7.addConstraint(Sketcher.Constraint("Distance", 2, Q("2 mm")))
sketch7.addConstraint(Sketcher.Constraint("DistanceX", 13, 1, 15, 2, Q("11 mm")))
sketch7.addConstraint(Sketcher.Constraint("DistanceX", 2, 2, 0, 1, Q("10.665999 mm")))
sketch7.addConstraint(Sketcher.Constraint("DistanceY", -1, 1, 0, 1, Q("9.840502 mm")))
sketch7.setExpression("Constraints[85]", "Params.sketch7_radius")
sketch7.setExpression("Constraints[86]", "Params.sketch7_width")
sketch7.setExpression("Constraints[87]", "Params.sketch7_length")
pad4 = body.newObject("PartDesign::Pad", "Pad003")
pad4.Profile = sketch7
pad4.setExpression("Length", "Params.pad4_length")
pad4.Reversed = True

doc.recompute()
